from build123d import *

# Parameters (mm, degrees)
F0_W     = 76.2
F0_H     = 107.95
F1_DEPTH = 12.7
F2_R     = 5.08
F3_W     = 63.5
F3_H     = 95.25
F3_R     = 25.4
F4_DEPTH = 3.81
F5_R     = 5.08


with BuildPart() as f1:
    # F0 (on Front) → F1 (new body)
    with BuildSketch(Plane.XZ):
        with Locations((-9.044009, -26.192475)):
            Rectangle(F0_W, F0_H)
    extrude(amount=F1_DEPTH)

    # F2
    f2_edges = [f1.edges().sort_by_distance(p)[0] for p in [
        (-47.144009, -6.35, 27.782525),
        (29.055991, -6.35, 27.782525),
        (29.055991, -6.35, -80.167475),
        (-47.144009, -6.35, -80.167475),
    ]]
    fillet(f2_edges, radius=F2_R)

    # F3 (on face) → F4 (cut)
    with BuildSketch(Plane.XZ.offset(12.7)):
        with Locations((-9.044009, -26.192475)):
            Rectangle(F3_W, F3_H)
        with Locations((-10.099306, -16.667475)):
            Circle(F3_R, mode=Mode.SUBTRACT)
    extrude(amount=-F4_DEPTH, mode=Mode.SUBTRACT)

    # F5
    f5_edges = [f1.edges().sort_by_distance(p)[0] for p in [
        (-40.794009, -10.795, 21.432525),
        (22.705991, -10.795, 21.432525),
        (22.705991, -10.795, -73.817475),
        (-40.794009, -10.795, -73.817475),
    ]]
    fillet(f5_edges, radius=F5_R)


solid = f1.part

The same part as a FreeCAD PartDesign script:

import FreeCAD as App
import Part
import Sketcher

V = App.Vector
Q = App.Units.Quantity


def edges_at(feature, points):
    """Names of the edges that pass closest to the given points."""
    edges = feature.Shape.Edges
    near = lambda p: min(range(len(edges)), key=lambda i: edges[i].distToShape(Part.Vertex(*p))[0])
    return sorted({f"Edge{near(p) + 1}" for p in points})


def add_polygon(sketch, points):
    """Adds a closed chain of lines whose ends are joined by coincident constraints."""
    first, n = sketch.GeometryCount, len(points)
    for a, b in zip(points, points[1:] + points[:1]):
        sketch.addGeometry(Part.LineSegment(App.Vector(*a, 0), App.Vector(*b, 0)), False)
    for i in range(n):
        sketch.addConstraint(Sketcher.Constraint("Coincident", first + i, 2, first + (i + 1) % n, 1))

doc = App.newDocument("Part")
body = doc.addObject("PartDesign::Body", "Body")

# Sketch on XZ plane
sketch1 = body.newObject("Sketcher::SketchObject", "Sketch")
sketch1.AttachmentSupport = (doc.getObject("XZ_Plane"), [""])
sketch1.MapMode = "FlatFace"
add_polygon(sketch1, [(-47, 28), (-47, -80), (29, -80), (29, 28)])  # lines 0-3
sketch1.addConstraint([
    Sketcher.Constraint("Vertical", 0),
    Sketcher.Constraint("Horizontal", 1),
    Sketcher.Constraint("Vertical", 2),
    Sketcher.Constraint("Horizontal", 3),
    Sketcher.Constraint("DistanceX", 1, 1, 1, 2, Q("3 in")),
    Sketcher.Constraint("DistanceY", 0, 2, 0, 1, Q("4.25 in")),
    Sketcher.Constraint("DistanceY", 0, 2, -1, 1, Q("3.1561998 in")),
    Sketcher.Constraint("DistanceX", 0, 2, -1, 1, 47.144009),
])
pad1 = body.newObject("PartDesign::Pad", "Pad")
pad1.Profile = sketch1
pad1.Length = Q("0.5 in")
doc.recompute()

fillet = body.newObject("PartDesign::Fillet", "Fillet")
fillet.Base = (pad1, edges_at(pad1, [
    (-47.144, -6.35, 27.783),
    (29.056, -6.35, 27.783),
    (29.056, -6.35, -80.167),
    (-47.144, -6.35, -80.167),
]))
fillet.Radius = Q("0.2 in")

# Sketch on XZ plane
sketch2 = body.newObject("Sketcher::SketchObject", "Sketch001")
sketch2.AttachmentSupport = (doc.getObject("XZ_Plane"), [""])
sketch2.MapMode = "FlatFace"
sketch2.AttachmentOffset = App.Placement(V(0, 0, 0.5 * 25.4), App.Rotation())
add_polygon(sketch2, [(-41, 21), (-41, -74), (23, -74), (23, 21)])  # lines 0-3
sketch2.addGeometry(Part.Circle(V(-10, -17, 0), V(0, 0, 1), 25), False)  # 4
sketch2.addConstraint([
    Sketcher.Constraint("Vertical", 0),
    Sketcher.Constraint("Horizontal", 1),
    Sketcher.Constraint("Vertical", 2),
    Sketcher.Constraint("Horizontal", 3),
    Sketcher.Constraint("Diameter", 4, Q("2 in")),
    Sketcher.Constraint("DistanceX", 1, 1, 1, 2, Q("2.5 in")),
    Sketcher.Constraint("DistanceY", 0, 2, 0, 1, Q("3.75 in")),
    Sketcher.Constraint("DistanceY", 4, 3, 2, 2, Q("1.5 in")),
    Sketcher.Constraint("DistanceY", 4, 3, -1, 1, Q("0.6561998 in")),
    Sketcher.Constraint("DistanceX", 0, 2, -1, 1, 40.794009),
    Sketcher.Constraint("DistanceX", 4, 3, -1, 1, 10.099306),
])
pocket1 = body.newObject("PartDesign::Pocket", "Pocket")
pocket1.Profile = sketch2
pocket1.Length = Q("0.15 in")
doc.recompute()

fillet2 = body.newObject("PartDesign::Fillet", "Fillet001")
fillet2.Base = (pocket1, edges_at(pocket1, [
    (-40.794, -10.795, 21.433),
    (22.706, -10.795, 21.433),
    (22.706, -10.795, -73.817),
    (-40.794, -10.795, -73.817),
]))
fillet2.Radius = Q("0.2 in")

doc.recompute()
